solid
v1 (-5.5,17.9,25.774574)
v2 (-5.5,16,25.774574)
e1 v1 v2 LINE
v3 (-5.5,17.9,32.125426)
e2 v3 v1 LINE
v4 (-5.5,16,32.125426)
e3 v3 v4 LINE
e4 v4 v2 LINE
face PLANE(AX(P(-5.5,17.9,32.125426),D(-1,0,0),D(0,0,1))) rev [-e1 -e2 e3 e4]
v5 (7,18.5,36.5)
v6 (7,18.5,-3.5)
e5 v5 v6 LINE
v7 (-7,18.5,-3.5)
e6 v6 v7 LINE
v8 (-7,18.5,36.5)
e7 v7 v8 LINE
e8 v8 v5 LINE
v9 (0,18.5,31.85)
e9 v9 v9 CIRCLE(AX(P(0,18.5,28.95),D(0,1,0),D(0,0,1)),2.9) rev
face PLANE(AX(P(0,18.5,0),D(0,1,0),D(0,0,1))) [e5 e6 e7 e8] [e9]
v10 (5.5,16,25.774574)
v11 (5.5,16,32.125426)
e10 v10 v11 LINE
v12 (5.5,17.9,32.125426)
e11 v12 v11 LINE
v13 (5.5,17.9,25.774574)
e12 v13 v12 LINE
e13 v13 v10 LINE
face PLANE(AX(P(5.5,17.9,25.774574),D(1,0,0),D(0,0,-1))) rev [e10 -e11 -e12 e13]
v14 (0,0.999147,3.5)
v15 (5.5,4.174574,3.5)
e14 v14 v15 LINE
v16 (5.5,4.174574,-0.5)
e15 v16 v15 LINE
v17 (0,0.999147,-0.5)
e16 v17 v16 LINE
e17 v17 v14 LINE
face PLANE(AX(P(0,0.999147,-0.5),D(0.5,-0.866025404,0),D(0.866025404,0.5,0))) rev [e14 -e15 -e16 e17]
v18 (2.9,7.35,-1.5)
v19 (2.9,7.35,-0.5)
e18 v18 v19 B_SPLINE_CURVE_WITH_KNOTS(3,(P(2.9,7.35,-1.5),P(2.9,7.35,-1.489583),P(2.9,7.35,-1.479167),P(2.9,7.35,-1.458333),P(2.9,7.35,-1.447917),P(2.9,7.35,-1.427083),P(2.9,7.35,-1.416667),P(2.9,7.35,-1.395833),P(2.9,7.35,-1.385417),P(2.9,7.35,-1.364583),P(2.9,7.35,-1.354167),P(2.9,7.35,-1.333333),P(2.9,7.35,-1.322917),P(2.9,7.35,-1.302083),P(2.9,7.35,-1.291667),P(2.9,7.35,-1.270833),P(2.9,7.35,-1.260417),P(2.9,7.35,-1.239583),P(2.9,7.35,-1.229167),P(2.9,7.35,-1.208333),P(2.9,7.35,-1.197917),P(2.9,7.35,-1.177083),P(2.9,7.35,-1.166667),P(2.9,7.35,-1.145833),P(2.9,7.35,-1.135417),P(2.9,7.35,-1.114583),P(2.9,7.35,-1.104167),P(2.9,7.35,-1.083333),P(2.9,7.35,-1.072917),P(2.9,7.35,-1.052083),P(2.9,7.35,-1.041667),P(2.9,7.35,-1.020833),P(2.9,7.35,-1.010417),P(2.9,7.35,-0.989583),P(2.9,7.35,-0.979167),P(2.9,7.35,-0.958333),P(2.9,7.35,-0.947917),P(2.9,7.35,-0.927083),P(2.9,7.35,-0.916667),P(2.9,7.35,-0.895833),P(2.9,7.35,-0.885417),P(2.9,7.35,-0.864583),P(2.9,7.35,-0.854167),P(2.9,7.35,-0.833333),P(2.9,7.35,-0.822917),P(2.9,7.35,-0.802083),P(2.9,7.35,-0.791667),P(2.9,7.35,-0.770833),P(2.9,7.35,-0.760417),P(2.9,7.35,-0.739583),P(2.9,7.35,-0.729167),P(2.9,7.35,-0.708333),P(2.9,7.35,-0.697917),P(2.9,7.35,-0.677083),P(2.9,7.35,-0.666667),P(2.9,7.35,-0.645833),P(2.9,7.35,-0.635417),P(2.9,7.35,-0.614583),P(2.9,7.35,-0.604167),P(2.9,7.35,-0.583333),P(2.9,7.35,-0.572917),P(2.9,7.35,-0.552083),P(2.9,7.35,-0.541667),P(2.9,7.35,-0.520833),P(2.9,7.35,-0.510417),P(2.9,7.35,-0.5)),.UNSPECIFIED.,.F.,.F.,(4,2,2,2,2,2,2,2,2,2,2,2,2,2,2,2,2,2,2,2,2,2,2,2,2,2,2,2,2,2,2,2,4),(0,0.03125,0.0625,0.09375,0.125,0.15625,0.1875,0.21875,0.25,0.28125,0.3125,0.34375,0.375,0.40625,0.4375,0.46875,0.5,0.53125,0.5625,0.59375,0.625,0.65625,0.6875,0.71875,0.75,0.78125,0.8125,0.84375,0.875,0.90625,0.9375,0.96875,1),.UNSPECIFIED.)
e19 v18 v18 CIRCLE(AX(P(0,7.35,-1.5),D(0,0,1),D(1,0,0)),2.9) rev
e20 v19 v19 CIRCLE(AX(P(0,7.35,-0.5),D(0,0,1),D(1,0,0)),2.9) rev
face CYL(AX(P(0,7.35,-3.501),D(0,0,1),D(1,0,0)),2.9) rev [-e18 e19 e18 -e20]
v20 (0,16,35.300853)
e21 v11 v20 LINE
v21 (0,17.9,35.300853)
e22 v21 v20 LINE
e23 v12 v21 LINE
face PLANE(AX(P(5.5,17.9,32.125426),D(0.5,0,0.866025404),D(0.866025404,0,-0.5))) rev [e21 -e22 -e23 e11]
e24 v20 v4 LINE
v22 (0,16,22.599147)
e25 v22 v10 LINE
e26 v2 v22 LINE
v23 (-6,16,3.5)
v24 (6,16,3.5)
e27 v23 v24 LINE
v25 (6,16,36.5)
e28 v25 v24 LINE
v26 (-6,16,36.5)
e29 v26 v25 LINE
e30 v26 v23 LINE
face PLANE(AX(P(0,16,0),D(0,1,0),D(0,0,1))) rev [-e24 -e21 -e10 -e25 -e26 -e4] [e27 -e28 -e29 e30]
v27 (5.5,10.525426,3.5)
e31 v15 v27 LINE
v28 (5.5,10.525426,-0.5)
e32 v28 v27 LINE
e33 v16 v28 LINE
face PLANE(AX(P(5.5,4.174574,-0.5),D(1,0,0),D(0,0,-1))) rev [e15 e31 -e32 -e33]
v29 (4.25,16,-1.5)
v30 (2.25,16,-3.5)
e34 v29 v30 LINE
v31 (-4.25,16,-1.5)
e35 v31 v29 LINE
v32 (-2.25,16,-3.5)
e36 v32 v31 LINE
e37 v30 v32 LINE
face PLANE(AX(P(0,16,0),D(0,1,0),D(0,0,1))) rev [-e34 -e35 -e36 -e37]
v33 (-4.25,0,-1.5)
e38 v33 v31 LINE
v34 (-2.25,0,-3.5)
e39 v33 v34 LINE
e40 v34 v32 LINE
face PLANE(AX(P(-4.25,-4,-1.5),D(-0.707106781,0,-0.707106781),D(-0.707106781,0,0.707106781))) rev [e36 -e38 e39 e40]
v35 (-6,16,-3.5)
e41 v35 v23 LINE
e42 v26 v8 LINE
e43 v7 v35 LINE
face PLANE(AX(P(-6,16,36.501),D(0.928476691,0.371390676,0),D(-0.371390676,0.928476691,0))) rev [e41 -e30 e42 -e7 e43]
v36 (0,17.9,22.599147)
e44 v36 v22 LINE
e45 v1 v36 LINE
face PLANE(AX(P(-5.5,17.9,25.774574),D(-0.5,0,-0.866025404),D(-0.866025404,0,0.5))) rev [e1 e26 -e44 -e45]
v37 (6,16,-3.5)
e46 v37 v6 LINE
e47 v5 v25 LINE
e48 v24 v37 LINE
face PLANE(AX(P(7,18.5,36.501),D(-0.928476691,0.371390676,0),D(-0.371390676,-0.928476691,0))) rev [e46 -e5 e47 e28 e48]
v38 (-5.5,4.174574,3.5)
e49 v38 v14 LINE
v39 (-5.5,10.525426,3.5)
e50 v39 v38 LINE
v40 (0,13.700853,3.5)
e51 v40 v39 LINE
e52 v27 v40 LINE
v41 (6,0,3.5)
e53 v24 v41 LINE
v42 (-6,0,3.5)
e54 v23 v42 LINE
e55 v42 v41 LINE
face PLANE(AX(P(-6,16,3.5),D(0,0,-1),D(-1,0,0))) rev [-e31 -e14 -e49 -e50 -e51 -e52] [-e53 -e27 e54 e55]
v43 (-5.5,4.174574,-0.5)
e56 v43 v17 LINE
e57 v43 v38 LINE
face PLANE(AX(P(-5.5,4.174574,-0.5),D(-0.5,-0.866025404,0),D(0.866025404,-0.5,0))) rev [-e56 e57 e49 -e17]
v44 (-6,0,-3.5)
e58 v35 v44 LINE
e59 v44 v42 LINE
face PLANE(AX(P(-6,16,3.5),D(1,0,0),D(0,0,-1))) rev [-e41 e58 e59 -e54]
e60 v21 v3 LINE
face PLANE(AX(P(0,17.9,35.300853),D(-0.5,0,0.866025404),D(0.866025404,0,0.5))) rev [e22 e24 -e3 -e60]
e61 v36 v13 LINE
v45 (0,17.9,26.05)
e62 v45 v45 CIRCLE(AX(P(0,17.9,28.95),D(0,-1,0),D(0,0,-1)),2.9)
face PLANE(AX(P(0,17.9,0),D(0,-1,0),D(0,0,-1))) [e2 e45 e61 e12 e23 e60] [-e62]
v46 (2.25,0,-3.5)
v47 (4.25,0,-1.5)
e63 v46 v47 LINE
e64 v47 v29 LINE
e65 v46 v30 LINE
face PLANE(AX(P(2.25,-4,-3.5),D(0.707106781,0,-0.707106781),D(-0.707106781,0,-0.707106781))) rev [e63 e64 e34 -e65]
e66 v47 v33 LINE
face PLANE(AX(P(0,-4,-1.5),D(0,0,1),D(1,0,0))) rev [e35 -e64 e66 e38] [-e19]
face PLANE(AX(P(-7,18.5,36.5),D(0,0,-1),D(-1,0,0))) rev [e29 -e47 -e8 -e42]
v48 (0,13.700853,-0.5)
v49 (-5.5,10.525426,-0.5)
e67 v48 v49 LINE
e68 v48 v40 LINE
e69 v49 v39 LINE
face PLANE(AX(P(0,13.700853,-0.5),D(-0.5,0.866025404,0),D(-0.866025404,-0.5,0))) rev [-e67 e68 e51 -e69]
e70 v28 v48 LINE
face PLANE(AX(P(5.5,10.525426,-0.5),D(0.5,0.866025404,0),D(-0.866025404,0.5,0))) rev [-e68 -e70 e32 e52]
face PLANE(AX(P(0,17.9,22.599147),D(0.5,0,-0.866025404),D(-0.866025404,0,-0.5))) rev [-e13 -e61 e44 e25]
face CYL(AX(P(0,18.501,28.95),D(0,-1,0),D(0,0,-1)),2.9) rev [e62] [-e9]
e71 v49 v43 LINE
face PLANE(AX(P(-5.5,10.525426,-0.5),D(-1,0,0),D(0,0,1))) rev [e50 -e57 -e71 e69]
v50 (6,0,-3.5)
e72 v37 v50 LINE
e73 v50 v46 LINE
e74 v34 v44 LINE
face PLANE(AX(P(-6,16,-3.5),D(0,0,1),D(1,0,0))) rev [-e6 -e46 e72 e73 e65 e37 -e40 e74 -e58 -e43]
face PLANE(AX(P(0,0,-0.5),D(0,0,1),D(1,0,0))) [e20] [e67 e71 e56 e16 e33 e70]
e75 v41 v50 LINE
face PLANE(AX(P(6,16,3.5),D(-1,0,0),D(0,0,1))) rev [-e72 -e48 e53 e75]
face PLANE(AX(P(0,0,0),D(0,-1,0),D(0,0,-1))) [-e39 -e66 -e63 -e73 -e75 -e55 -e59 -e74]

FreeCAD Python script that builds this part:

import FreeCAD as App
import Part
import Sketcher
from FreeCAD import Vector
Q = App.Units.Quantity


def add_polygon(sketch, points):
    """Adds a closed chain of lines whose ends are joined by coincident constraints."""
    first, n = sketch.GeometryCount, len(points)
    for a, b in zip(points, points[1:] + points[:1]):
        sketch.addGeometry(Part.LineSegment(App.Vector(*a, 0), App.Vector(*b, 0)), False)
    for i in range(n):
        sketch.addConstraint(Sketcher.Constraint("Coincident", first + i, 2, first + (i + 1) % n, 1))

doc = App.newDocument("Part")
body = doc.addObject("PartDesign::Body", "Body")

sketch1 = doc.addObject("Sketcher::SketchObject", "Sketch")
body.addObject(sketch1)
sketch1.AttachmentSupport = (doc.XZ_Plane, [""])
sketch1.MapMode = "FlatFace"
add_polygon(sketch1, [(-6, -4), (-6, 4), (6, 4), (6, -4)])
sketch1.addConstraint([
    Sketcher.Constraint("Vertical", 0),
    Sketcher.Constraint("Horizontal", 1),
    Sketcher.Constraint("Vertical", 2),
    Sketcher.Constraint("Horizontal", 3),
    Sketcher.Constraint("Symmetric", 0, 2, 2, 2, -1, 1),
    Sketcher.Constraint("DistanceX", 1, 1, 1, 2, 12.0),
    Sketcher.Constraint("DistanceY", 0, 1, 0, 2, 7.0),
])
pad1 = doc.addObject("PartDesign::Pad", "Pad")
body.addObject(pad1)
pad1.Profile = sketch1
pad1.Length = 16
pad1.Reversed = True

sketch2 = doc.addObject("Sketcher::SketchObject", "Sketch001")
body.addObject(sketch2)
sketch2.AttachmentSupport = (doc.XZ_Plane, [""])
sketch2.MapMode = "FlatFace"
sketch2.AttachmentOffset = App.Placement(Vector(0, 0, -16), App.Rotation())
add_polygon(sketch2, [(2.2, -3.5), (-2.2, -3.5), (-4.2, -1.5), (4.2, -1.5)])
sketch2.addConstraint([
    Sketcher.Constraint("Horizontal", 0),
    Sketcher.Constraint("Horizontal", 2),
    Sketcher.Constraint("Perpendicular", 1, 3),
    Sketcher.Constraint("Equal", 1, 3),
    Sketcher.Constraint("DistanceX", 0, 2, 0, 1, 4.5),
    Sketcher.Constraint("DistanceX", 2, 1, 2, 2, 8.5),
    Sketcher.Constraint("DistanceY", 0, 2, -1, 1, 3.5),
    Sketcher.Constraint("DistanceX", 0, 2, -1, 1, 2.25),
])
pocket1 = doc.addObject("PartDesign::Pocket", "Pocket")
body.addObject(pocket1)
pocket1.Profile = sketch2
pocket1.Length = 20
pocket1.Reversed = True

sketch3 = doc.addObject("Sketcher::SketchObject", "Sketch002")
body.addObject(sketch3)
sketch3.AttachmentSupport = (doc.XY_Plane, [""])
sketch3.MapMode = "FlatFace"
sketch3.AttachmentOffset = App.Placement(Vector(0, 0, 3.5), App.Rotation())
sketch3.addGeometry(Part.Circle(Vector(0, 7.3, 0), Vector(0, 0, 1), 2.9), False)
sketch3.addConstraint([
    Sketcher.Constraint("PointOnObject", 0, 3, -2),
    Sketcher.Constraint("Diameter", 0, 5.8),
    Sketcher.Constraint("DistanceY", -1, 1, 0, 3, 7.35),
])
pocket2 = doc.addObject("PartDesign::Pocket", "Pocket001")
body.addObject(pocket2)
pocket2.Profile = sketch3
pocket2.Type = "UpToFirst"

sketch4 = doc.addObject("Sketcher::SketchObject", "Sketch003")
body.addObject(sketch4)
sketch4.AttachmentSupport = (doc.XY_Plane, [""])
sketch4.MapMode = "FlatFace"
sketch4.AttachmentOffset = App.Placement(Vector(0, 0, 3.5), App.Rotation())
add_polygon(sketch4, [(0, 14), (-6, 11), (-6, 4), (0, 1), (6, 4), (6, 11)])
sketch4.addConstraint([
    Sketcher.Constraint("Vertical", 1),
    Sketcher.Constraint("Vertical", 4),
    Sketcher.Constraint("Symmetric", 1, 2, 3, 2, -2),
    Sketcher.Constraint("PointOnObject", 2, 2, -2),
    Sketcher.Constraint("PointOnObject", 5, 2, -2),
    Sketcher.Constraint("Parallel", 0, 3),
    Sketcher.Constraint("Parallel", 2, 5),
    Sketcher.Constraint("Angle", 0, Q("-150 deg")),
    Sketcher.Constraint("DistanceX", 1, 2, 3, 2, 11.0),
    Sketcher.Constraint("DistanceY", 1, 2, 1, 1, 6.350853),
    Sketcher.Constraint("DistanceY", -1, 1, 0, 2, 10.525426),
])
pocket3 = doc.addObject("PartDesign::Pocket", "Pocket002")
body.addObject(pocket3)
pocket3.Profile = sketch4
pocket3.Length = 4

sketch5 = doc.addObject("Sketcher::SketchObject", "Sketch004")
body.addObject(sketch5)
sketch5.AttachmentSupport = (doc.XZ_Plane, [""])
sketch5.MapMode = "FlatFace"
sketch5.AttachmentOffset = App.Placement(Vector(0, 0, -16), App.Rotation())
add_polygon(sketch5, [(-7, -4), (-7, 36), (7, 36), (7, -4)])
sketch5.addConstraint([
    Sketcher.Constraint("Vertical", 0),
    Sketcher.Constraint("Horizontal", 1),
    Sketcher.Constraint("Vertical", 2),
    Sketcher.Constraint("Horizontal", 3),
    Sketcher.Constraint("DistanceX", 1, 1, 1, 2, 14.0),
    Sketcher.Constraint("DistanceY", 0, 1, 0, 2, 40.0),
    Sketcher.Constraint("DistanceX", 0, 2, -1, 1, 7.0),
    Sketcher.Constraint("DistanceY", -1, 1, 0, 2, 36.5),
])
pad2 = doc.addObject("PartDesign::Pad", "Pad001")
body.addObject(pad2)
pad2.Profile = sketch5
pad2.Length = 2.5
pad2.Reversed = True

sketch6 = doc.addObject("Sketcher::SketchObject", "Sketch005")
body.addObject(sketch6)
sketch6.AttachmentSupport = (doc.XY_Plane, [""])
sketch6.MapMode = "FlatFace"
sketch6.AttachmentOffset = App.Placement(Vector(0, 0, -3.5), App.Rotation())
add_polygon(sketch6, [(7, 18.5), (7, 16), (6, 16)])
sketch6.addConstraint([
    Sketcher.Constraint("Vertical", 0),
    Sketcher.Constraint("Horizontal", 1),
    Sketcher.Constraint("DistanceX", 1, 2, 1, 1, 1.0),
    Sketcher.Constraint("DistanceY", 0, 2, 0, 1, 2.5),
    Sketcher.Constraint("DistanceX", -1, 1, 0, 2, 7.0),
    Sketcher.Constraint("DistanceY", -1, 1, 0, 2, 16.0),
])
pocket4 = doc.addObject("PartDesign::Pocket", "Pocket003")
body.addObject(pocket4)
pocket4.Profile = sketch6
pocket4.Type = "UpToFirst"
pocket4.Reversed = True

sketch7 = doc.addObject("Sketcher::SketchObject", "Sketch006")
body.addObject(sketch7)
sketch7.AttachmentSupport = (doc.XY_Plane, [""])
sketch7.MapMode = "FlatFace"
sketch7.AttachmentOffset = App.Placement(Vector(0, 0, -3.5), App.Rotation())
add_polygon(sketch7, [(-6, 16), (-7, 16), (-7, 18.5)])
sketch7.addConstraint([
    Sketcher.Constraint("Horizontal", 0),
    Sketcher.Constraint("Vertical", 1),
    Sketcher.Constraint("DistanceX", 0, 2, 0, 1, 1.0),
    Sketcher.Constraint("DistanceY", 1, 1, 1, 2, 2.5),
    Sketcher.Constraint("DistanceX", 0, 2, -1, 1, 7.0),
    Sketcher.Constraint("DistanceY", -1, 1, 0, 2, 16.0),
])
pocket5 = doc.addObject("PartDesign::Pocket", "Pocket004")
body.addObject(pocket5)
pocket5.Profile = sketch7
pocket5.Type = "UpToFirst"
pocket5.Reversed = True

sketch8 = doc.addObject("Sketcher::SketchObject", "Sketch007")
body.addObject(sketch8)
sketch8.AttachmentSupport = (doc.XZ_Plane, [""])
sketch8.MapMode = "FlatFace"
sketch8.AttachmentOffset = App.Placement(Vector(0, 0, -16), App.Rotation())
add_polygon(sketch8, [(0, 23), (6, 26), (6, 32), (0, 35), (-6, 32), (-6, 26)])
sketch8.addConstraint([
    Sketcher.Constraint("Vertical", 1),
    Sketcher.Constraint("Vertical", 4),
    Sketcher.Constraint("Symmetric", 1, 2, 3, 2, -2),
    Sketcher.Constraint("PointOnObject", 2, 2, -2),
    Sketcher.Constraint("PointOnObject", 5, 2, -2),
    Sketcher.Constraint("Parallel", 0, 3),
    Sketcher.Constraint("Parallel", 2, 5),
    Sketcher.Constraint("Angle", 0, Q("30 deg")),
    Sketcher.Constraint("DistanceX", 3, 2, 1, 2, 11.0),
    Sketcher.Constraint("DistanceY", 1, 1, 1, 2, 6.350853),
    Sketcher.Constraint("DistanceY", -1, 1, 0, 2, 25.774574),
])
pocket6 = doc.addObject("PartDesign::Pocket", "Pocket005")
body.addObject(pocket6)
pocket6.Profile = sketch8
pocket6.Length = 1.9

sketch9 = doc.addObject("Sketcher::SketchObject", "Sketch008")
body.addObject(sketch9)
sketch9.AttachmentSupport = (doc.XZ_Plane, [""])
sketch9.MapMode = "FlatFace"
sketch9.AttachmentOffset = App.Placement(Vector(0, 0, -17.9), App.Rotation())
sketch9.addGeometry(Part.Circle(Vector(0, 28.9, 0), Vector(0, 0, 1), 2.9), False)
sketch9.addConstraint([
    Sketcher.Constraint("PointOnObject", 0, 3, -2),
    Sketcher.Constraint("Diameter", 0, 5.8),
    Sketcher.Constraint("DistanceY", -1, 1, 0, 3, 28.95),
])
pocket7 = doc.addObject("PartDesign::Pocket", "Pocket006")
body.addObject(pocket7)
pocket7.Profile = sketch9
pocket7.Type = "UpToFirst"

doc.recompute()
